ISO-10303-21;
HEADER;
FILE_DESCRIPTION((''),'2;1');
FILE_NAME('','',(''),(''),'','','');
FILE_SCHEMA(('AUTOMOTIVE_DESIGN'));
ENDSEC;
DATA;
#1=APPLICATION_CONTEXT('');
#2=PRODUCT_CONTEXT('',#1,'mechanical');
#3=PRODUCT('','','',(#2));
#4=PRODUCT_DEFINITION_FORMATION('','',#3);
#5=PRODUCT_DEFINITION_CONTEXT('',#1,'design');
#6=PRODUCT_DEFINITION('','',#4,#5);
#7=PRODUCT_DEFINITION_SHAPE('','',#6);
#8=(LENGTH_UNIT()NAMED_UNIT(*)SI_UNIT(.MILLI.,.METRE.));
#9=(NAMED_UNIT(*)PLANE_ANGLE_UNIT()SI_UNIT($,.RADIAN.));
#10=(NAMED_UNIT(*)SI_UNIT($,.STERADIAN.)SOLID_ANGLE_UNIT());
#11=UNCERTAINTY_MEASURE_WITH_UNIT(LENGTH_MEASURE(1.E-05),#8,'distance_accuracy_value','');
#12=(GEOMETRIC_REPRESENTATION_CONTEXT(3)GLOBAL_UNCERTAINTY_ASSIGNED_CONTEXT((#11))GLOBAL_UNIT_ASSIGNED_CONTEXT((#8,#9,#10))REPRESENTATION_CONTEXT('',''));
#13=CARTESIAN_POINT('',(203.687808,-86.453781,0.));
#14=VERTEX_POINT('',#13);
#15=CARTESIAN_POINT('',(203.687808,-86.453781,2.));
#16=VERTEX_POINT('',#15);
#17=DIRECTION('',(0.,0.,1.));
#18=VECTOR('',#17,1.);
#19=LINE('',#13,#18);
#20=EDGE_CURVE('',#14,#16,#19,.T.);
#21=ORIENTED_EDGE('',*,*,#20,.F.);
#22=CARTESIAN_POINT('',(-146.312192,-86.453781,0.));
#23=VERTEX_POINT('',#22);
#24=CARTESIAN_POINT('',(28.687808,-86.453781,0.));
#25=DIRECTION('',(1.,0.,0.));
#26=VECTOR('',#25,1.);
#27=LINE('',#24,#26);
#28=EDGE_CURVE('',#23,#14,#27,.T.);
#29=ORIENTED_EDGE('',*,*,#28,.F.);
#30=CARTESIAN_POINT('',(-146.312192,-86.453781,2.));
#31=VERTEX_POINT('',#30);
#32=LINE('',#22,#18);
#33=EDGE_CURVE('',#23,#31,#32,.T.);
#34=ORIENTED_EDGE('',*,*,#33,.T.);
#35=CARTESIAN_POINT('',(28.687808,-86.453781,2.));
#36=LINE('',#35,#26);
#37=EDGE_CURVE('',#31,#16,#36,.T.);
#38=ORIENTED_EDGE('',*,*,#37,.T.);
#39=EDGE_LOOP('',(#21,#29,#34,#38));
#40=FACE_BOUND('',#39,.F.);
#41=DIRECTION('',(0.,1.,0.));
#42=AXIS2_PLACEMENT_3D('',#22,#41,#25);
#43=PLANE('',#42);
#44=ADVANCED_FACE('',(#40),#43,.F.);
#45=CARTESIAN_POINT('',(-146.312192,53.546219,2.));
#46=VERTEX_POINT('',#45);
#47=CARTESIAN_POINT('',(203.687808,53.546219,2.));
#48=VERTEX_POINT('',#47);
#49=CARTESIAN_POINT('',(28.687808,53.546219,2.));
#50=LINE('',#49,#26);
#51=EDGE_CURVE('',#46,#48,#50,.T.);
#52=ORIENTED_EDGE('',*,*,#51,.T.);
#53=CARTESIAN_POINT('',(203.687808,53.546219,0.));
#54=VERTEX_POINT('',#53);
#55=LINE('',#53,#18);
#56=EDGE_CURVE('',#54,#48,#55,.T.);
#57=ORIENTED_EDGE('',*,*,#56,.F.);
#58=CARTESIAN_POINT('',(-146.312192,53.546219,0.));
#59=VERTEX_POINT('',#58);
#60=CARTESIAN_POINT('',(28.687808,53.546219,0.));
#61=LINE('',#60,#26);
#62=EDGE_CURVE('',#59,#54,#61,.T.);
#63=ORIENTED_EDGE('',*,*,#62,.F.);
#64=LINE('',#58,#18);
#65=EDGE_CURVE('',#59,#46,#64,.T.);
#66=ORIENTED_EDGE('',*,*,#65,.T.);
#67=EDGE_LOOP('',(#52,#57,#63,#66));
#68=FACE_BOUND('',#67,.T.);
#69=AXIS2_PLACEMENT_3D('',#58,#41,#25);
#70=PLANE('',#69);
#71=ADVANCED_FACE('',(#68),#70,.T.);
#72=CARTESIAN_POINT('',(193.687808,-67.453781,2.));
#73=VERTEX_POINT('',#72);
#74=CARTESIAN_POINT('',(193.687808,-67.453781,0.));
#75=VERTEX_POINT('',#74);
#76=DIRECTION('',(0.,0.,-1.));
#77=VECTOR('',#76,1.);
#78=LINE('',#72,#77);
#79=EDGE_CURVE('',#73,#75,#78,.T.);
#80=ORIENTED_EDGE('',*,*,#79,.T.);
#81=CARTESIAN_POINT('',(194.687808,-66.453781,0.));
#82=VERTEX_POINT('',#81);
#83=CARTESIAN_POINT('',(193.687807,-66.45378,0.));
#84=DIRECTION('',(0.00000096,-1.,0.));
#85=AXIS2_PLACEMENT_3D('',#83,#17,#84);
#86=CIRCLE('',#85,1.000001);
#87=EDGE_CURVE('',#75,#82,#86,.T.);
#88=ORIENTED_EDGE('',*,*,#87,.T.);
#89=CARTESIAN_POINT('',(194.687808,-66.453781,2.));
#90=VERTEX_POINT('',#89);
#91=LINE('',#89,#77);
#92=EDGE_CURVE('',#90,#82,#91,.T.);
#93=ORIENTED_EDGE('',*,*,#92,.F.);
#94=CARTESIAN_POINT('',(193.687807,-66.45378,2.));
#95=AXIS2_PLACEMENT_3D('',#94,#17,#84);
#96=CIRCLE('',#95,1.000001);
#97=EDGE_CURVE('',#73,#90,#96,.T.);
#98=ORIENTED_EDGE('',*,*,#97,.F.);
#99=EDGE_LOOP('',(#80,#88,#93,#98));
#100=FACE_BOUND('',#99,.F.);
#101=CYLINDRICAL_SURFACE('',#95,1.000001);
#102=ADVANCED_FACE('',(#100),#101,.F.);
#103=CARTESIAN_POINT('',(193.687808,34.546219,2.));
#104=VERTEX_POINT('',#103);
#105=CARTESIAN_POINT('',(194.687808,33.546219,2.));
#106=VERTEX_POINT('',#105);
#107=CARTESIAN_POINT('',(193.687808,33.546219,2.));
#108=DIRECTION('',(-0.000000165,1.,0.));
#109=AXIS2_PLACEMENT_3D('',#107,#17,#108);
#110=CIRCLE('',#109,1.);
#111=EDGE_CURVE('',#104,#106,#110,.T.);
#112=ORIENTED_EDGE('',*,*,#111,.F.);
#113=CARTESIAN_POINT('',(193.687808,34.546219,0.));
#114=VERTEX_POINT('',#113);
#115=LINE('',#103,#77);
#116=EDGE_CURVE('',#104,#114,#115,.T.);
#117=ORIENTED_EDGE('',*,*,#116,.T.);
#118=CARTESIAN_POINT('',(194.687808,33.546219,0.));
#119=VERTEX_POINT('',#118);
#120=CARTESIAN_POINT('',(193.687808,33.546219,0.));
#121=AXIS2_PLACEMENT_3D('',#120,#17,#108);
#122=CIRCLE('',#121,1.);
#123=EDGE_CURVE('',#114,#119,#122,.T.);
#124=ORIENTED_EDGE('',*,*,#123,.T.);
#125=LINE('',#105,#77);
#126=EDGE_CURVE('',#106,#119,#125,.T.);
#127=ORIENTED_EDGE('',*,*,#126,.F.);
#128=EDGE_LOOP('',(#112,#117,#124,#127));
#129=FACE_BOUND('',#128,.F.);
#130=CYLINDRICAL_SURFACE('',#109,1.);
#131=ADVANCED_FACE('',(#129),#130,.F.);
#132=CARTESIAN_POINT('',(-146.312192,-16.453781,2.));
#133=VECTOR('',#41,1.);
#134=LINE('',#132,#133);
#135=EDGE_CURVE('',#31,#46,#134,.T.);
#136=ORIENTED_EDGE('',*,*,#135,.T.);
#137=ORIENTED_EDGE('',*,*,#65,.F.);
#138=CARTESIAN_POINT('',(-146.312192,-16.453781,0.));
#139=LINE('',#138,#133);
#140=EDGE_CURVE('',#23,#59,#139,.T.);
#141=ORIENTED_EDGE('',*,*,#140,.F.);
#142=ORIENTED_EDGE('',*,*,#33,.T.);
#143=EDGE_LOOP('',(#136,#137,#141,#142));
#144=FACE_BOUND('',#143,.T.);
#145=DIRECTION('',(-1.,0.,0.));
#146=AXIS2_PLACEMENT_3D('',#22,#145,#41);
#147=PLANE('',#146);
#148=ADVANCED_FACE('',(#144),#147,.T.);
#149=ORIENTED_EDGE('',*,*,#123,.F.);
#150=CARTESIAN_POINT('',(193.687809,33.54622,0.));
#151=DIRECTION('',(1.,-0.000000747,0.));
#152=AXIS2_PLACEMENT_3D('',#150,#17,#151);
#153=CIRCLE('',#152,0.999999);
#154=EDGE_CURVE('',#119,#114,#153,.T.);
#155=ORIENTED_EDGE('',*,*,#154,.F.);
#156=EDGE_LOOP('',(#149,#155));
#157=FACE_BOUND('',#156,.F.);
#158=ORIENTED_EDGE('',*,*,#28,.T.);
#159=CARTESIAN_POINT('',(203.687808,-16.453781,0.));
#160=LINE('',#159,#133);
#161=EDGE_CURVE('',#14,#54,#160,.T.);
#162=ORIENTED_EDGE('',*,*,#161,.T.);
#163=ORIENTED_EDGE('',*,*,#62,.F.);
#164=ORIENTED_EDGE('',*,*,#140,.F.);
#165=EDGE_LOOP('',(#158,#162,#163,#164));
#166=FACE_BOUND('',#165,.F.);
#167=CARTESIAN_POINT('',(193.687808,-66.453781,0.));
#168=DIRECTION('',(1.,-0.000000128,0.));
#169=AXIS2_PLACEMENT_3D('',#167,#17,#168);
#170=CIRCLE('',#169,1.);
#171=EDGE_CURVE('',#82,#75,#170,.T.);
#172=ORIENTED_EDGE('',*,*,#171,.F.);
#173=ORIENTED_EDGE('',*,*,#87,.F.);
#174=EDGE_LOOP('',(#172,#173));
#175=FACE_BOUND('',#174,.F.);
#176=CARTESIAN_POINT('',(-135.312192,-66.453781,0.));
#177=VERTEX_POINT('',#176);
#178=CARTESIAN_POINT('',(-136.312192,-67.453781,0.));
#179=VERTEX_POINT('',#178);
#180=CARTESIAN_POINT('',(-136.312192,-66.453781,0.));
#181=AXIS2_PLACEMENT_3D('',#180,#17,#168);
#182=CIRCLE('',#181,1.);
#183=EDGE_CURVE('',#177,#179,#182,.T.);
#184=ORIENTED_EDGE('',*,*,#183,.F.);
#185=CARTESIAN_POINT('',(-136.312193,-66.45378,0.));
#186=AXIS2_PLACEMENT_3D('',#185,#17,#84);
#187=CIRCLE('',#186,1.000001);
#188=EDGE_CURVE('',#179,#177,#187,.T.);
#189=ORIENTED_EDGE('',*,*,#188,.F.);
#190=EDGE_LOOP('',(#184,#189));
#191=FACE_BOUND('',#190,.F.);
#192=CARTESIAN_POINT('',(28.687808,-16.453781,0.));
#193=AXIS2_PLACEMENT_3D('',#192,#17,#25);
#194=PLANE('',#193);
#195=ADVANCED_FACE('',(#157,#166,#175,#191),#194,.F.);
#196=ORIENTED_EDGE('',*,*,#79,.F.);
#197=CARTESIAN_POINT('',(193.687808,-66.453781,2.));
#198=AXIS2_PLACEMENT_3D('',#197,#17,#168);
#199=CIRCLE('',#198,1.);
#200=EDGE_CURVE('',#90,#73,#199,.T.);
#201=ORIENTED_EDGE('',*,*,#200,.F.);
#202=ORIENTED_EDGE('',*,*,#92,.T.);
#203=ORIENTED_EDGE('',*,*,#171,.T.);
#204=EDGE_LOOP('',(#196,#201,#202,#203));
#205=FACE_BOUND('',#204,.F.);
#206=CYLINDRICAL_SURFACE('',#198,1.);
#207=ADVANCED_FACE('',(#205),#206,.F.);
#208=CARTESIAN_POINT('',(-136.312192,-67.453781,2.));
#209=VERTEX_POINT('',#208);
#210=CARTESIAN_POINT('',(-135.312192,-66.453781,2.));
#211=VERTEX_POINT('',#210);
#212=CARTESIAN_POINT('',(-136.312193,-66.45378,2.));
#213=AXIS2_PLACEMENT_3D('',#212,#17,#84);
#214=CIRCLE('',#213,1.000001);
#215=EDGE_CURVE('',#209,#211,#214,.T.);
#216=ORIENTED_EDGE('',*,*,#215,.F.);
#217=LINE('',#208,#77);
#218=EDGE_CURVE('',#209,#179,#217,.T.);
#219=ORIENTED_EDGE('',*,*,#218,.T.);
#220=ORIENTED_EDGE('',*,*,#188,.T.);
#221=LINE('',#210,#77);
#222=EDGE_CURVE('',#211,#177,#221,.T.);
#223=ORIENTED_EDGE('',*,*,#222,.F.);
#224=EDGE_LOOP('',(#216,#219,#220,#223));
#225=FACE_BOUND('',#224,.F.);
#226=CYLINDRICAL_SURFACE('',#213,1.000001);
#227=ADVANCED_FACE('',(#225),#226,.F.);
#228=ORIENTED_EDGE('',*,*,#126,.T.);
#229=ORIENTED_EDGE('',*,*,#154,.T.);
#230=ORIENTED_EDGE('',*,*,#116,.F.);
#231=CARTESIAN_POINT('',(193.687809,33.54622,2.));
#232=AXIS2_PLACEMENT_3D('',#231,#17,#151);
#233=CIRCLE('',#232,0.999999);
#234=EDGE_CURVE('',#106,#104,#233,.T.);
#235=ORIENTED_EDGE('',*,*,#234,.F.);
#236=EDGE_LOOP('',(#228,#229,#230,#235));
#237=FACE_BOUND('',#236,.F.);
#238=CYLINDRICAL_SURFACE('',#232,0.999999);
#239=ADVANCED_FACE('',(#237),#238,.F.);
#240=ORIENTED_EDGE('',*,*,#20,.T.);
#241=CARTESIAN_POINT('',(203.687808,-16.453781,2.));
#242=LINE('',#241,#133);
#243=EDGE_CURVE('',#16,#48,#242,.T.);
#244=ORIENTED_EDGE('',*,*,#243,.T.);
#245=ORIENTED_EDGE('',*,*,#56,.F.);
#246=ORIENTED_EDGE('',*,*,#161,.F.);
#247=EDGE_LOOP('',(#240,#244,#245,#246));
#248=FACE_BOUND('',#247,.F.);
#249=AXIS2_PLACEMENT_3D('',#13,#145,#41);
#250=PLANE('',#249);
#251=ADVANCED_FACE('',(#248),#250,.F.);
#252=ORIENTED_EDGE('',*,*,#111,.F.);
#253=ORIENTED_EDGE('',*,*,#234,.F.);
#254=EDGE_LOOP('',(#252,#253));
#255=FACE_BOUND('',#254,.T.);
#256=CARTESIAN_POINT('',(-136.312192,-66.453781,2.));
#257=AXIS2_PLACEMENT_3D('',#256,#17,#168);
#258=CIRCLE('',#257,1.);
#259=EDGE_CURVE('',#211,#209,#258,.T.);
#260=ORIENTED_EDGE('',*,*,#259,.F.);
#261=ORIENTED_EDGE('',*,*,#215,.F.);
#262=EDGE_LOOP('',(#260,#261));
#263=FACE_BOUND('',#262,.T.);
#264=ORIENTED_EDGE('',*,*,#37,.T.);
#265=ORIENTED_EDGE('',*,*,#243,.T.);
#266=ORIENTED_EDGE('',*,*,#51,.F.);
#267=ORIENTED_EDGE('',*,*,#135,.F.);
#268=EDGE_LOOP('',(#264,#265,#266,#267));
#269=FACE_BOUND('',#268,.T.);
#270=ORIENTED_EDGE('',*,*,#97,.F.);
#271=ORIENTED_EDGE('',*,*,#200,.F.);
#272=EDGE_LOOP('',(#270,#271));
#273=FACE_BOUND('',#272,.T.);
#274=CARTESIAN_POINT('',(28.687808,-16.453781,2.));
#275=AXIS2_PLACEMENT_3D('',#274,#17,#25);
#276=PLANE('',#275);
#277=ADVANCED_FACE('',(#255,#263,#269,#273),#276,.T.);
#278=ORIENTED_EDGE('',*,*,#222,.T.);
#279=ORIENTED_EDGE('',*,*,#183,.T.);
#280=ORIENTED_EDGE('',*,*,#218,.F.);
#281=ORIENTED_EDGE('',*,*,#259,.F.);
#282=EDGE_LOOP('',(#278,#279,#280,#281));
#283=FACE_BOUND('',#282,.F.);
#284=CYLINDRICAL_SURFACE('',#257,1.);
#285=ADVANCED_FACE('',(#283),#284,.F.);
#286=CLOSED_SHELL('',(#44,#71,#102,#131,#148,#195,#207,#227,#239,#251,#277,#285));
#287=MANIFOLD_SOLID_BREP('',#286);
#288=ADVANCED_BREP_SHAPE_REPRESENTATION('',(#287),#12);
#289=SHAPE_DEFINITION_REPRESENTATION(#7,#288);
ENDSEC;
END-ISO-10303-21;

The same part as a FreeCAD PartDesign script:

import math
import FreeCAD as App
import Part
import Sketcher

doc = App.newDocument("Part")
body = doc.addObject("PartDesign::Body", "Body")

sketch1 = doc.addObject("Sketcher::SketchObject", "Sketch")
body.addObject(sketch1)
sketch1.AttachmentSupport = (doc.XY_Plane, [""])
sketch1.MapMode = "FlatFace"
sketch1.addGeometry(Part.LineSegment(App.Vector(-146.312192, 53.546219, 0), App.Vector(-146.312192, -86.453781, 0)), False)
sketch1.addGeometry(Part.LineSegment(App.Vector(-146.312192, -86.453781, 0), App.Vector(203.687808, -86.453781, 0)), False)
sketch1.addGeometry(Part.LineSegment(App.Vector(203.687808, -86.453781, 0), App.Vector(203.687808, 53.546219, 0)), False)
sketch1.addGeometry(Part.LineSegment(App.Vector(203.687808, 53.546219, 0), App.Vector(-146.312192, 53.546219, 0)), False)
sketch1.addConstraint(Sketcher.Constraint("Coincident", 0, 2, 1, 1))
sketch1.addConstraint(Sketcher.Constraint("Coincident", 1, 2, 2, 1))
sketch1.addConstraint(Sketcher.Constraint("Coincident", 2, 2, 3, 1))
sketch1.addConstraint(Sketcher.Constraint("Coincident", 3, 2, 0, 1))
sketch1.addConstraint(Sketcher.Constraint("Vertical", 0))
sketch1.addConstraint(Sketcher.Constraint("Horizontal", 1))
sketch1.addConstraint(Sketcher.Constraint("Vertical", 2))
sketch1.addConstraint(Sketcher.Constraint("Horizontal", 3))
sketch1.addConstraint(Sketcher.Constraint("DistanceX", 1, 1, 1, 2, 350.0))
sketch1.addConstraint(Sketcher.Constraint("DistanceY", 0, 2, 0, 1, 140.0))
sketch1.addConstraint(Sketcher.Constraint("DistanceY", 0, 2, -1, 1, 86.453781))
sketch1.addConstraint(Sketcher.Constraint("DistanceX", 0, 2, -1, 1, 146.312192))
pad1 = doc.addObject("PartDesign::Pad", "Pad")
body.addObject(pad1)
pad1.Profile = sketch1
pad1.Length = 2

sketch2 = doc.addObject("Sketcher::SketchObject", "Sketch001")
body.addObject(sketch2)
sketch2.AttachmentSupport = (doc.XY_Plane, [""])
sketch2.MapMode = "FlatFace"
sketch2.AttachmentOffset = App.Placement(App.Vector(0, 0, 2), App.Rotation())
sketch2.addGeometry(Part.ArcOfCircle(Part.Circle(App.Vector(-136.312192, -66.453781, 0), App.Vector(0, 0, 1), 1), math.radians(-0.000007), math.radians(270.000007)), False)
sketch2.addGeometry(Part.ArcOfCircle(Part.Circle(App.Vector(-136.312193, -66.45378, 0), App.Vector(0, 0, 1), 1.000001), math.radians(-89.999945), math.radians(-0.000055)), False)
sketch2.addConstraint(Sketcher.Constraint("Tangent", 0, 1, 1, 2))
sketch2.addConstraint(Sketcher.Constraint("Coincident", 1, 1, 0, 2))
sketch2.addConstraint(Sketcher.Constraint("Horizontal", 1, 3, 0, 1))
sketch2.addConstraint(Sketcher.Constraint("Vertical", 0, 3, 1, 1))
sketch2.addConstraint(Sketcher.Constraint("Radius", 0, 1.0))
sketch2.addConstraint(Sketcher.Constraint("DistanceY", 0, 3, -1, 1, 66.453781))
sketch2.addConstraint(Sketcher.Constraint("DistanceX", 0, 3, -1, 1, 136.312192))
pocket1 = doc.addObject("PartDesign::Pocket", "Pocket")
body.addObject(pocket1)
pocket1.Profile = sketch2
pocket1.Length = 25

sketch3 = doc.addObject("Sketcher::SketchObject", "Sketch002")
body.addObject(sketch3)
sketch3.AttachmentSupport = (doc.XY_Plane, [""])
sketch3.MapMode = "FlatFace"
sketch3.AttachmentOffset = App.Placement(App.Vector(0, 0, 2), App.Rotation())
sketch3.addGeometry(Part.ArcOfCircle(Part.Circle(App.Vector(193.687809, 33.54622, 0), App.Vector(0, 0, 1), 0.999999), math.radians(-0.000043), math.radians(90.000043)), False)
sketch3.addGeometry(Part.ArcOfCircle(Part.Circle(App.Vector(193.687808, 33.546219, 0), App.Vector(0, 0, 1), 1), math.radians(90.000009), math.radians(359.999991)), False)
sketch3.addConstraint(Sketcher.Constraint("Tangent", 0, 1, 1, 2))
sketch3.addConstraint(Sketcher.Constraint("Coincident", 1, 1, 0, 2))
sketch3.addConstraint(Sketcher.Constraint("Horizontal", 1, 3, 0, 1))
sketch3.addConstraint(Sketcher.Constraint("Vertical", 0, 3, 1, 1))
sketch3.addConstraint(Sketcher.Constraint("Radius", 0, 0.999999))
sketch3.addConstraint(Sketcher.Constraint("DistanceX", -1, 1, 0, 3, 193.687809))
sketch3.addConstraint(Sketcher.Constraint("DistanceY", -1, 1, 0, 3, 33.54622))
pocket2 = doc.addObject("PartDesign::Pocket", "Pocket001")
body.addObject(pocket2)
pocket2.Profile = sketch3
pocket2.Length = 25

sketch4 = doc.addObject("Sketcher::SketchObject", "Sketch003")
body.addObject(sketch4)
sketch4.AttachmentSupport = (doc.XY_Plane, [""])
sketch4.MapMode = "FlatFace"
sketch4.AttachmentOffset = App.Placement(App.Vector(0, 0, 2), App.Rotation())
sketch4.addGeometry(Part.ArcOfCircle(Part.Circle(App.Vector(193.687808, -66.453781, 0), App.Vector(0, 0, 1), 1), math.radians(-0.000007), math.radians(270.000007)), False)
sketch4.addGeometry(Part.ArcOfCircle(Part.Circle(App.Vector(193.687807, -66.45378, 0), App.Vector(0, 0, 1), 1.000001), math.radians(-89.999945), math.radians(-0.000055)), False)
sketch4.addConstraint(Sketcher.Constraint("Tangent", 0, 1, 1, 2))
sketch4.addConstraint(Sketcher.Constraint("Coincident", 1, 1, 0, 2))
sketch4.addConstraint(Sketcher.Constraint("Horizontal", 1, 3, 0, 1))
sketch4.addConstraint(Sketcher.Constraint("Vertical", 0, 3, 1, 1))
sketch4.addConstraint(Sketcher.Constraint("Radius", 0, 1.0))
sketch4.addConstraint(Sketcher.Constraint("DistanceY", 0, 3, -1, 1, 66.453781))
sketch4.addConstraint(Sketcher.Constraint("DistanceX", -1, 1, 0, 3, 193.687808))
pocket3 = doc.addObject("PartDesign::Pocket", "Pocket002")
body.addObject(pocket3)
pocket3.Profile = sketch4
pocket3.Length = 25

doc.recompute()
